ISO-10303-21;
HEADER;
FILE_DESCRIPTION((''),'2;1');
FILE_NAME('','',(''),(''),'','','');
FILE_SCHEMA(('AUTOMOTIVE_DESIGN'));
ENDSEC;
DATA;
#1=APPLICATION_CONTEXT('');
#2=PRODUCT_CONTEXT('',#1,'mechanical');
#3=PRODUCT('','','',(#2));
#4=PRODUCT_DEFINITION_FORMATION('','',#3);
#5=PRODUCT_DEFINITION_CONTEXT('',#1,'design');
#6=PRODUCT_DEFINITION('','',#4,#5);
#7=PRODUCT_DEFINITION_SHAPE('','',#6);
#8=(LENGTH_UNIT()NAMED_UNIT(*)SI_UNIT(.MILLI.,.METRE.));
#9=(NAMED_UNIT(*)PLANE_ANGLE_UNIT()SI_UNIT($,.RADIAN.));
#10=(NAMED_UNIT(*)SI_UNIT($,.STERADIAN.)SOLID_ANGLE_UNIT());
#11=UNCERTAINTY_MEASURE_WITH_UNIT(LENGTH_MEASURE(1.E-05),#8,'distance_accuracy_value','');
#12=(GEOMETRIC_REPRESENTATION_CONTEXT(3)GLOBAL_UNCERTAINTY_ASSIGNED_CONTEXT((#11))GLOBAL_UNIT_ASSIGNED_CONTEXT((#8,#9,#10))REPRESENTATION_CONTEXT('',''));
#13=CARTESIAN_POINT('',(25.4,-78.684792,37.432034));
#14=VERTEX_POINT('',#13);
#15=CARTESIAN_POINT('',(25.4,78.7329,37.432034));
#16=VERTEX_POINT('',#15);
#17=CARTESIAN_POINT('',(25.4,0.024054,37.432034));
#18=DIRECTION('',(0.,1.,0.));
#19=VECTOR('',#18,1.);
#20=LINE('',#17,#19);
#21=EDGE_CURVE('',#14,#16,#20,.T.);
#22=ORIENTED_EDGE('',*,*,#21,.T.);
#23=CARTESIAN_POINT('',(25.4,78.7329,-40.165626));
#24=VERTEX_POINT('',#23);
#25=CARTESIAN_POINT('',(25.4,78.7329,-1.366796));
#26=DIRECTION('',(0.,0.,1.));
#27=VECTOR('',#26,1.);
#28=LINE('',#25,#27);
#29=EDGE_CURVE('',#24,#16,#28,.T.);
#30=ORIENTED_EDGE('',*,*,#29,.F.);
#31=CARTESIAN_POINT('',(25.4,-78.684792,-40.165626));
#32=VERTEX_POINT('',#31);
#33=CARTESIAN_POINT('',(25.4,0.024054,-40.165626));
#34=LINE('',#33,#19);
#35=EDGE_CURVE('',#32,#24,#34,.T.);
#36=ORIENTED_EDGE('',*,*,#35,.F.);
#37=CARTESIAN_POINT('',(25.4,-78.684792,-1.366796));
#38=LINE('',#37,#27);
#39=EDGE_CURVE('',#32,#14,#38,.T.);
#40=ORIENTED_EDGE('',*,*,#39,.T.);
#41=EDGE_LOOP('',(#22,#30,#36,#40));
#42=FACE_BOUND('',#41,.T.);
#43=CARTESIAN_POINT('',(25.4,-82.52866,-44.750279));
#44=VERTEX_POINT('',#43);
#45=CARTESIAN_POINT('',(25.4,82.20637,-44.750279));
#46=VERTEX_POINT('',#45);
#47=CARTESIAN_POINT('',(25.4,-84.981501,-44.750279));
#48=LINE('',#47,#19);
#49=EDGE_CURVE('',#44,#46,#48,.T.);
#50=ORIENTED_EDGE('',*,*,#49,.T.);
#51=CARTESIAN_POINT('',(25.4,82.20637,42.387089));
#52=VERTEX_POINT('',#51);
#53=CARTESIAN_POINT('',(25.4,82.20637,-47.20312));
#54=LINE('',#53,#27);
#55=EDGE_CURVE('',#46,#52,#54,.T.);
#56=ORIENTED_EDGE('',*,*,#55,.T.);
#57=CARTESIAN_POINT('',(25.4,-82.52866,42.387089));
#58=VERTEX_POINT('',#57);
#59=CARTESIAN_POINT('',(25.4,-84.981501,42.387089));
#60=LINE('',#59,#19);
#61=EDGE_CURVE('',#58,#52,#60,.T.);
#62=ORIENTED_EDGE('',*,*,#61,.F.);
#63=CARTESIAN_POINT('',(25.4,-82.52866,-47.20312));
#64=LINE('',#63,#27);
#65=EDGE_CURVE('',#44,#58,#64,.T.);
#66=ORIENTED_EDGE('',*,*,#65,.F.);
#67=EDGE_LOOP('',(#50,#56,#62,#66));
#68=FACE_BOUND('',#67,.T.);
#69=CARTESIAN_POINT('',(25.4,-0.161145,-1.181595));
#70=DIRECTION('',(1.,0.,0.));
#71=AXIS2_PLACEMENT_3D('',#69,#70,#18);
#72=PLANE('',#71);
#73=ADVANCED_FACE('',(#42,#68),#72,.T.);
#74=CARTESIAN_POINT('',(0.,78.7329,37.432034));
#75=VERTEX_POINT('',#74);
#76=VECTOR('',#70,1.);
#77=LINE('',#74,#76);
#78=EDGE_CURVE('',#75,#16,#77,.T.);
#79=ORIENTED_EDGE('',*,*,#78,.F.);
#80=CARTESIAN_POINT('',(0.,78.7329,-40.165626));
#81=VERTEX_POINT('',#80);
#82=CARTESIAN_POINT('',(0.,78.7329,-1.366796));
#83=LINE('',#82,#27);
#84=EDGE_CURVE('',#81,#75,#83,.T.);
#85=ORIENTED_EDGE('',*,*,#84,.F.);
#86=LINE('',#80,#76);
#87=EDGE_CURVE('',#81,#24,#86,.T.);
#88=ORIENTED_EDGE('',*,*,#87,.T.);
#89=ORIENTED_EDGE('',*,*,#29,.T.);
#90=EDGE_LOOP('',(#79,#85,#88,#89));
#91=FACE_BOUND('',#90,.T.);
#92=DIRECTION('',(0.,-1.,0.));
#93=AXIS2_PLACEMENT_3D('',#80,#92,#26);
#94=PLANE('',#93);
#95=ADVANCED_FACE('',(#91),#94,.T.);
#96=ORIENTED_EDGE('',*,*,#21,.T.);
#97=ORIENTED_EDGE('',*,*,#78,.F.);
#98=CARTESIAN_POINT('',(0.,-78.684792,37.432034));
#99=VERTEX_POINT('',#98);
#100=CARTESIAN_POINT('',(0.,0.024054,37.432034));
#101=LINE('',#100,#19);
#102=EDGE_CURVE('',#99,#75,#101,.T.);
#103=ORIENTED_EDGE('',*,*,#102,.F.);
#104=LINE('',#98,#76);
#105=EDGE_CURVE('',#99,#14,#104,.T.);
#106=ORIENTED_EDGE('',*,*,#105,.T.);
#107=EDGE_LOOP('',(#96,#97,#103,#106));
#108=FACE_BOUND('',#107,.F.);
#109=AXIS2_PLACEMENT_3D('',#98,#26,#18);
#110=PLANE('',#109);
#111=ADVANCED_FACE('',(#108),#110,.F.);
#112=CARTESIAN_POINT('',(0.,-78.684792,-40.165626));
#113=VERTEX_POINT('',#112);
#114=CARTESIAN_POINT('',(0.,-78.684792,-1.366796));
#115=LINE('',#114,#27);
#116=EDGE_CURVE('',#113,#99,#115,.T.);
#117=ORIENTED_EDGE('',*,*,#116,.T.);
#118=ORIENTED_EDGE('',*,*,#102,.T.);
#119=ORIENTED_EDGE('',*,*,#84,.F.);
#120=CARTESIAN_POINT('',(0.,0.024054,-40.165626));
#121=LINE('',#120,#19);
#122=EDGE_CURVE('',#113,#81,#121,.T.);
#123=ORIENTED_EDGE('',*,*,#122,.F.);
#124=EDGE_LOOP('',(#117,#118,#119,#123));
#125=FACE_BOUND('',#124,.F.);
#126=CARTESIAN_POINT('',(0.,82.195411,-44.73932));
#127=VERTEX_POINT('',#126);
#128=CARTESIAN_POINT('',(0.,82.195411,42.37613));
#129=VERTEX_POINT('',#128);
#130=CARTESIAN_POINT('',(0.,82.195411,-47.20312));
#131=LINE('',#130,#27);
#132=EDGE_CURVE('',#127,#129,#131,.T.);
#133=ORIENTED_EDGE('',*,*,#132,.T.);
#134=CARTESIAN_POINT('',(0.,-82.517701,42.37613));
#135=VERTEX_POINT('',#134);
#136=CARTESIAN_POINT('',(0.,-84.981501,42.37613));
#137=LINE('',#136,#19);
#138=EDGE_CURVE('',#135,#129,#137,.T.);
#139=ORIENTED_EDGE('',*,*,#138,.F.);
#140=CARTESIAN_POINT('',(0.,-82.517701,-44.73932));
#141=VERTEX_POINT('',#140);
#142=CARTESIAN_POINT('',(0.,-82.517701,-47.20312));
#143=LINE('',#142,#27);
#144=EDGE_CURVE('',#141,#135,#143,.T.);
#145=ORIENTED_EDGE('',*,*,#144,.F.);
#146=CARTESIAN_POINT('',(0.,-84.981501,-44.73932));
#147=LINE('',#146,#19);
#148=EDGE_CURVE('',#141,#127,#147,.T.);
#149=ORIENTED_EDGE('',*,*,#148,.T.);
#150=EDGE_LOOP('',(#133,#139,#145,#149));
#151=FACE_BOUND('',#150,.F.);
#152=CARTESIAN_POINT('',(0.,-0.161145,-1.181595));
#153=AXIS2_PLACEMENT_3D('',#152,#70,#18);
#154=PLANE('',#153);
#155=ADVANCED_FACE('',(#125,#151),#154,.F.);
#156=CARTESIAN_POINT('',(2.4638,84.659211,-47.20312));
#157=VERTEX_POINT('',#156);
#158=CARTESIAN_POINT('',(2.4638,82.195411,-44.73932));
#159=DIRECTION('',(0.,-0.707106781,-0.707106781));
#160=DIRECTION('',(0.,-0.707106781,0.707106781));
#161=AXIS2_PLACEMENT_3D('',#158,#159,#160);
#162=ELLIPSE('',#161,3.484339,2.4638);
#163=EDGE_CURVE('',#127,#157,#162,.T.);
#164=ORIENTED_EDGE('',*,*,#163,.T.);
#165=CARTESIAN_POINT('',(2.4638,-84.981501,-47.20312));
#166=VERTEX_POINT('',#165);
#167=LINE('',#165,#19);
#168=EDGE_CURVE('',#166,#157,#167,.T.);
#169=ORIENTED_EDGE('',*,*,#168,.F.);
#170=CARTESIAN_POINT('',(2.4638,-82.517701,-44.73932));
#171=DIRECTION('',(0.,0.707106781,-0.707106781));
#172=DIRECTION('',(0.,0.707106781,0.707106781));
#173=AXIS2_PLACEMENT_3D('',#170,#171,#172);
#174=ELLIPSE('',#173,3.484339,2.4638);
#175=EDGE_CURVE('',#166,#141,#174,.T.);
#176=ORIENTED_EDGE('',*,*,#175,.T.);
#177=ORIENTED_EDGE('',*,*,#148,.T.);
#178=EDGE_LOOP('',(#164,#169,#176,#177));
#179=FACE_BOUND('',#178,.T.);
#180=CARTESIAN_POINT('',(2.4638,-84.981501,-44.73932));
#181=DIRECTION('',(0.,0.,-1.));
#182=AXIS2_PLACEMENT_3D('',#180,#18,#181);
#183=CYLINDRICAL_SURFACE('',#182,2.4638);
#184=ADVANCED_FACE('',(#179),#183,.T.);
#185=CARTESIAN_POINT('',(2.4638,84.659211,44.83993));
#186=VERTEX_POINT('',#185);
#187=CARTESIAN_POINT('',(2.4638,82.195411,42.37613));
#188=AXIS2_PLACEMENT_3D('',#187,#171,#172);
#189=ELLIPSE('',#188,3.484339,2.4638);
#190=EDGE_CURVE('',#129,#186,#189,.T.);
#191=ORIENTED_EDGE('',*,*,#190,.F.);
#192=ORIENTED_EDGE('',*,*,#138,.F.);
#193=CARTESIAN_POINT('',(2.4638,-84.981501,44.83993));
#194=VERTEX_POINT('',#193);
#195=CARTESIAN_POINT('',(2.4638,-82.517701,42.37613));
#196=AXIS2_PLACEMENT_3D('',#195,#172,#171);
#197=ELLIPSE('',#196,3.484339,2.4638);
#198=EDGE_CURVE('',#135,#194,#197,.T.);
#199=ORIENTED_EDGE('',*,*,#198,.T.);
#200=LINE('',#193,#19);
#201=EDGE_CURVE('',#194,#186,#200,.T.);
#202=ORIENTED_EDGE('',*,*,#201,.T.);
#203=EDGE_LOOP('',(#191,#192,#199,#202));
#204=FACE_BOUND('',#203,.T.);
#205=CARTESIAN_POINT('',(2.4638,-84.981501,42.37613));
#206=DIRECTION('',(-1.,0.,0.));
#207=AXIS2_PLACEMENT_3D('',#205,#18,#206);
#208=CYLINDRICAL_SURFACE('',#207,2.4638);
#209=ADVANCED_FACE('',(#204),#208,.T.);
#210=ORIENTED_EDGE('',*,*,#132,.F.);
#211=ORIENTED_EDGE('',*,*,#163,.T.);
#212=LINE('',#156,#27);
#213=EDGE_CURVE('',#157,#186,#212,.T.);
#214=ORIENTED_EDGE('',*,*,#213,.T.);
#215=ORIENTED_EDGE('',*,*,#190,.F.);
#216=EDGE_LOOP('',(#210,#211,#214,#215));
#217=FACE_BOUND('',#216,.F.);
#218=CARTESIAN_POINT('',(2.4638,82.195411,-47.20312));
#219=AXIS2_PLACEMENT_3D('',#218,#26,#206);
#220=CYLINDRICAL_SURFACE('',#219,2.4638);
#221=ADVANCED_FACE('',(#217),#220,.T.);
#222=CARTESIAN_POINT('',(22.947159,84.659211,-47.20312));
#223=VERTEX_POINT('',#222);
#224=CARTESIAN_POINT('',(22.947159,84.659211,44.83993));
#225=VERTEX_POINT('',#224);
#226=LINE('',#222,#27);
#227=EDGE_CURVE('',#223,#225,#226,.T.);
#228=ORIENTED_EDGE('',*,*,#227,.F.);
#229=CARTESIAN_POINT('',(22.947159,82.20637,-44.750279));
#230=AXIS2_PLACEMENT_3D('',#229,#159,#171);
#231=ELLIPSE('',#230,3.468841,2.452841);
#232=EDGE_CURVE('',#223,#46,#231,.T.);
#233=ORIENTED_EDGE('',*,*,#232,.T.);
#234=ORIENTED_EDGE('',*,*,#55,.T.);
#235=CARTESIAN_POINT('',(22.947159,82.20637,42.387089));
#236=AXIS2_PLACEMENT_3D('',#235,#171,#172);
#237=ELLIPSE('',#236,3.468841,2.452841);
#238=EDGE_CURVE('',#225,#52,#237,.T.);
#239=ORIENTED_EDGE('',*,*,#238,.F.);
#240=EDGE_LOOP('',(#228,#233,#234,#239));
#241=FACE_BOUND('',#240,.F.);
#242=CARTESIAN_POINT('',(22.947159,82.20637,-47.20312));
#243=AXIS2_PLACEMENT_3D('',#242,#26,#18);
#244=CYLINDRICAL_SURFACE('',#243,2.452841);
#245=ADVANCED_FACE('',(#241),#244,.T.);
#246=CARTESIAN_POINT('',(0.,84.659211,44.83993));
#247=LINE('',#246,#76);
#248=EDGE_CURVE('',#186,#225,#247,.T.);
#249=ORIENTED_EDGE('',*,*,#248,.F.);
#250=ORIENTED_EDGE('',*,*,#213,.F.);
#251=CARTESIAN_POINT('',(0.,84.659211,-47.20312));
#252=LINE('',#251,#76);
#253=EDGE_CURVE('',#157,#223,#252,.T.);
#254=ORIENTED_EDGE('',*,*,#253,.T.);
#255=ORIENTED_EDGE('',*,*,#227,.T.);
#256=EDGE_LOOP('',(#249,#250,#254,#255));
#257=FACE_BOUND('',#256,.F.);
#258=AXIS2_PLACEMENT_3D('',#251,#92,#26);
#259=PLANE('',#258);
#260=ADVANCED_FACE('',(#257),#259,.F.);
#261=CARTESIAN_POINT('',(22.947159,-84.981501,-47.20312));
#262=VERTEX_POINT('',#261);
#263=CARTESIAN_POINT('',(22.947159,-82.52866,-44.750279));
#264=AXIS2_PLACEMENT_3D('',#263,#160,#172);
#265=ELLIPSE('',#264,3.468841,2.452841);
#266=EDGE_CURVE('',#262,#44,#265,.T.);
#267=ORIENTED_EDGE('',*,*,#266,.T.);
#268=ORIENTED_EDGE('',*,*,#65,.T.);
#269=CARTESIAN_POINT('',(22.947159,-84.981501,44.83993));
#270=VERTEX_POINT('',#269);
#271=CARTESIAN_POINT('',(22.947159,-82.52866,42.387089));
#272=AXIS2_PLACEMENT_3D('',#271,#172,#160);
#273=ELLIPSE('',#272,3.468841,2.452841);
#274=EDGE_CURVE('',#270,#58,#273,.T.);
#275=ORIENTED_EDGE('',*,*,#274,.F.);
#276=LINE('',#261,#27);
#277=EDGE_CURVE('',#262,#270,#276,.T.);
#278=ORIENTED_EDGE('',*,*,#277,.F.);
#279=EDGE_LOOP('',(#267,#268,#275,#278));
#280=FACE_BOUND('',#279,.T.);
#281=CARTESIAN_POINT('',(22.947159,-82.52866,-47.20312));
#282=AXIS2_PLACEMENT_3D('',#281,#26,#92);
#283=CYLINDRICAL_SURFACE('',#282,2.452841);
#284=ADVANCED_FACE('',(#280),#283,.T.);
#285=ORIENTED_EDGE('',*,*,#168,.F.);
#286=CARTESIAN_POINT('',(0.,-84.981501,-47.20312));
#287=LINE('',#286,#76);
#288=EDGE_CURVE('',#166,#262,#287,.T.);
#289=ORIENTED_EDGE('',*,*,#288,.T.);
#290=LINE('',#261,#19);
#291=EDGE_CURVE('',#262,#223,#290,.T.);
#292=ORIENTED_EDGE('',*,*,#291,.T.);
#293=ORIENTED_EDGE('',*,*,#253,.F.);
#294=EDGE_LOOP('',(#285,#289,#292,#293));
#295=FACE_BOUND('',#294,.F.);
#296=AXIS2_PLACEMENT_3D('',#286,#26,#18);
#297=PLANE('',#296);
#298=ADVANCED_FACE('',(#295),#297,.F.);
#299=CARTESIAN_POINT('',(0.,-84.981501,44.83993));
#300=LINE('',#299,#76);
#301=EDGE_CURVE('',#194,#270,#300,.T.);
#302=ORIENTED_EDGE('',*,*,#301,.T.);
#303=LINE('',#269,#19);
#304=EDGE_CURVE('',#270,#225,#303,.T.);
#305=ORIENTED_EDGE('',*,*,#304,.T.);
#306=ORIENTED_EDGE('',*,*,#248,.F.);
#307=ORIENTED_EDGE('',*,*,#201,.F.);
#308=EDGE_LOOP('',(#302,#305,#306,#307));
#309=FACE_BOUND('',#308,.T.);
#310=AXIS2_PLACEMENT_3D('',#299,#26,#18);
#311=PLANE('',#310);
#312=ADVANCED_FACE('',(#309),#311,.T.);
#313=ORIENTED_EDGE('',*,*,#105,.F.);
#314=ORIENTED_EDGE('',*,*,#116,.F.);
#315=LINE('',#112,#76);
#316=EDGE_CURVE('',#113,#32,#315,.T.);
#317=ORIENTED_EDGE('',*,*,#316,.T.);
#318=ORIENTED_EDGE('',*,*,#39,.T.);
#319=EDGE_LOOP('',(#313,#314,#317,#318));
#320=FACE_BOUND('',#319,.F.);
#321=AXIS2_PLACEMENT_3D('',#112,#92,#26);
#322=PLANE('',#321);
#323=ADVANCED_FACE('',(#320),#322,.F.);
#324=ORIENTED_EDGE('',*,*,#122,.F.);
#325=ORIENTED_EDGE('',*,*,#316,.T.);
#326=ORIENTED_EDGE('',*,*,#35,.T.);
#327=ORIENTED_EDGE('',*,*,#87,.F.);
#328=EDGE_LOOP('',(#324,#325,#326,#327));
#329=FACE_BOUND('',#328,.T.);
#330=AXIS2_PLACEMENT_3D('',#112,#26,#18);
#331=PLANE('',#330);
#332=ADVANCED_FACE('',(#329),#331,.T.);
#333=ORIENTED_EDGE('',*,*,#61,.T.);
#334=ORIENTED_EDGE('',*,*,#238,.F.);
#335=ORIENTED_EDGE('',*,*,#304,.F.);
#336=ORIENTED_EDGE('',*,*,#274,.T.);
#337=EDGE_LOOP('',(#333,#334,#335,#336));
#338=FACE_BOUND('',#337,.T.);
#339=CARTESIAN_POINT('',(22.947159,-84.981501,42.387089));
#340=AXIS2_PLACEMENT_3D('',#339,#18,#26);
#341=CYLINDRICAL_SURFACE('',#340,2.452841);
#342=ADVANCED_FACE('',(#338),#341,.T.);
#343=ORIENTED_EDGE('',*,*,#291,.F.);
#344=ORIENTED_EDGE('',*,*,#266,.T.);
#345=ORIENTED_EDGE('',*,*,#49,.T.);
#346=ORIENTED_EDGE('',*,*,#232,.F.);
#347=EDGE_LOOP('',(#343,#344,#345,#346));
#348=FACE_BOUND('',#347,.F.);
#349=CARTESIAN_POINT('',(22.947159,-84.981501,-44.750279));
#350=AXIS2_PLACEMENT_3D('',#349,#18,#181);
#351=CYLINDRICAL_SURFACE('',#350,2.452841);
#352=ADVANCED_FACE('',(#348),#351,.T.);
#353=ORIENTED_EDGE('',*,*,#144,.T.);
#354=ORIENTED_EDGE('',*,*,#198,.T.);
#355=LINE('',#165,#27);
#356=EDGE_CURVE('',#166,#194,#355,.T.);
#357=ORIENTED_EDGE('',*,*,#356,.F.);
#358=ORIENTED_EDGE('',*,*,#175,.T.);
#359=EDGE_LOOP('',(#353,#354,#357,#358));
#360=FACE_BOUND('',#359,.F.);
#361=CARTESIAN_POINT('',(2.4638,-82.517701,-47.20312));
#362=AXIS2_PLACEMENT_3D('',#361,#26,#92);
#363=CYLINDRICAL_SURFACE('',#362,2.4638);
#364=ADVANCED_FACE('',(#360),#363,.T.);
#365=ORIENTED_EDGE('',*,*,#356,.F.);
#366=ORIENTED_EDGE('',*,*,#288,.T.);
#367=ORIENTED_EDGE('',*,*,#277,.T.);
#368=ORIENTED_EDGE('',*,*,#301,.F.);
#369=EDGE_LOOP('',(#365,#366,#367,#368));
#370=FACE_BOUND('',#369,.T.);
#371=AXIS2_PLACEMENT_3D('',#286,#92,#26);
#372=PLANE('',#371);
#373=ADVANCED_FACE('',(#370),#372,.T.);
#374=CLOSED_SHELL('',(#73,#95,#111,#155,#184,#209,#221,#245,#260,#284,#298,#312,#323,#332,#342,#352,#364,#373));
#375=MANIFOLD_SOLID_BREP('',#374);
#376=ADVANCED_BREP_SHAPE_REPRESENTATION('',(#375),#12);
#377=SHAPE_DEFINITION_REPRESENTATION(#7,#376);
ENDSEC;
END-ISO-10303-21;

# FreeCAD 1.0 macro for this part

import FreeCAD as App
import Part
import Sketcher
from FreeCAD import Vector
Q = App.Units.Quantity


def edges_at(feature, points):
    """Names of the edges that pass closest to the given points."""
    edges = feature.Shape.Edges
    near = lambda p: min(range(len(edges)), key=lambda i: edges[i].distToShape(Part.Vertex(*p))[0])
    return sorted({f"Edge{near(p) + 1}" for p in points})

doc = App.newDocument("Part")
body = doc.addObject("PartDesign::Body", "Body")

# Sketch on YZ plane
sketch1 = body.newObject("Sketcher::SketchObject", "Sketch")
sketch1.AttachmentSupport = (doc.getObject("YZ_Plane"), [""])
sketch1.MapMode = "FlatFace"
sketch1.addGeometry(Part.LineSegment(Vector(-85, 45, 0), Vector(-85, -47, 0)), False)
sketch1.addGeometry(Part.LineSegment(Vector(-85, -47, 0), Vector(85, -47, 0)), False)
sketch1.addGeometry(Part.LineSegment(Vector(85, -47, 0), Vector(85, 45, 0)), False)
sketch1.addGeometry(Part.LineSegment(Vector(85, 45, 0), Vector(-85, 45, 0)), False)
sketch1.addGeometry(Part.LineSegment(Vector(79, -40, 0), Vector(-79, -40, 0)), False)
sketch1.addGeometry(Part.LineSegment(Vector(-79, -40, 0), Vector(-79, 37, 0)), False)
sketch1.addGeometry(Part.LineSegment(Vector(-79, 37, 0), Vector(79, 37, 0)), False)
sketch1.addGeometry(Part.LineSegment(Vector(79, 37, 0), Vector(79, -40, 0)), False)
sketch1.addConstraint(Sketcher.Constraint("Coincident", 0, 2, 1, 1))
sketch1.addConstraint(Sketcher.Constraint("Coincident", 1, 2, 2, 1))
sketch1.addConstraint(Sketcher.Constraint("Coincident", 2, 2, 3, 1))
sketch1.addConstraint(Sketcher.Constraint("Coincident", 3, 2, 0, 1))
sketch1.addConstraint(Sketcher.Constraint("Coincident", 4, 2, 5, 1))
sketch1.addConstraint(Sketcher.Constraint("Coincident", 5, 2, 6, 1))
sketch1.addConstraint(Sketcher.Constraint("Coincident", 6, 2, 7, 1))
sketch1.addConstraint(Sketcher.Constraint("Coincident", 7, 2, 4, 1))
sketch1.addConstraint(Sketcher.Constraint("Vertical", 0))
sketch1.addConstraint(Sketcher.Constraint("Horizontal", 1))
sketch1.addConstraint(Sketcher.Constraint("Vertical", 2))
sketch1.addConstraint(Sketcher.Constraint("Horizontal", 3))
sketch1.addConstraint(Sketcher.Constraint("Horizontal", 4))
sketch1.addConstraint(Sketcher.Constraint("Vertical", 5))
sketch1.addConstraint(Sketcher.Constraint("Horizontal", 6))
sketch1.addConstraint(Sketcher.Constraint("Vertical", 7))
sketch1.addConstraint(Sketcher.Constraint("DistanceX", 1, 1, 1, 2, Q("169.640712 mm")))
sketch1.addConstraint(Sketcher.Constraint("DistanceX", 4, 2, 4, 1, Q("157.417692 mm")))
sketch1.addConstraint(Sketcher.Constraint("DistanceY", 0, 2, 0, 1, Q("92.04305 mm")))
sketch1.addConstraint(Sketcher.Constraint("DistanceY", 5, 1, 5, 2, Q("77.59766 mm")))
sketch1.addConstraint(Sketcher.Constraint("DistanceX", 0, 2, -1, 1, Q("84.981501 mm")))
sketch1.addConstraint(Sketcher.Constraint("DistanceX", -1, 1, 6, 2, Q("78.7329 mm")))
sketch1.addConstraint(Sketcher.Constraint("DistanceY", 0, 2, -1, 1, Q("47.20312 mm")))
sketch1.addConstraint(Sketcher.Constraint("DistanceY", 4, 2, -1, 1, Q("40.165626 mm")))
pad1 = body.newObject("PartDesign::Pad", "Pad")
pad1.Profile = sketch1
pad1.Length = Q("1 in")
doc.recompute()

fillet = body.newObject("PartDesign::Fillet", "Fillet")
fillet.Base = (pad1, edges_at(pad1, [
    (25.4, -0.161, -47.203),
    (25.4, -84.982, -1.182),
    (25.4, -0.161, 44.84),
    (25.4, 84.659, -1.182),
]))
fillet.Radius = 2.452841
doc.recompute()

fillet2 = body.newObject("PartDesign::Fillet", "Fillet001")
fillet2.Base = (fillet, edges_at(fillet, [
    (0, 84.659, -1.182),
    (0, -0.161, 44.84),
    (0, -0.161, -47.203),
    (0, -84.982, -1.182),
]))
fillet2.Radius = Q("0.097 in")

doc.recompute()
